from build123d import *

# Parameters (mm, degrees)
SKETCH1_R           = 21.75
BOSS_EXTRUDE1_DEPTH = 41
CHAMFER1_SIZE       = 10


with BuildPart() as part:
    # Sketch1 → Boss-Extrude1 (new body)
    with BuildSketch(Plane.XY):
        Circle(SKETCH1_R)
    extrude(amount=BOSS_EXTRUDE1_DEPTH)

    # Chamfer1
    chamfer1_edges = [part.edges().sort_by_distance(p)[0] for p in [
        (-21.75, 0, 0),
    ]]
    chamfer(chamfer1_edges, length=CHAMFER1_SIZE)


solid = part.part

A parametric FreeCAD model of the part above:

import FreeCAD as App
import Part
import Sketcher
Q = App.Units.Quantity


def edges_at(feature, points):
    """Names of the edges that pass closest to the given points."""
    edges = feature.Shape.Edges
    near = lambda p: min(range(len(edges)), key=lambda i: edges[i].distToShape(Part.Vertex(*p))[0])
    return sorted({f"Edge{near(p) + 1}" for p in points})

doc = App.newDocument("Part")
body = doc.addObject("PartDesign::Body", "Body")

# Sketch on XY plane
sketch1 = body.newObject("Sketcher::SketchObject", "Sketch")
sketch1.AttachmentSupport = (doc.getObject("XY_Plane"), [""])
sketch1.MapMode = "FlatFace"
sketch1.addGeometry(Part.Circle(App.Vector(0, 0, 0), App.Vector(0, 0, 1), 22), False)
sketch1.addConstraint(Sketcher.Constraint("Coincident", 0, 3, -1, 1))
sketch1.addConstraint(Sketcher.Constraint("Diameter", 0, Q("43.5 mm")))
pad1 = body.newObject("PartDesign::Pad", "Pad")
pad1.Profile = sketch1
pad1.Length = 41
doc.recompute()

chamfer = body.newObject("PartDesign::Chamfer", "Chamfer")
chamfer.Base = (pad1, edges_at(pad1, [(-21.75, 0, 0)]))
chamfer.Size = 10

doc.recompute()
